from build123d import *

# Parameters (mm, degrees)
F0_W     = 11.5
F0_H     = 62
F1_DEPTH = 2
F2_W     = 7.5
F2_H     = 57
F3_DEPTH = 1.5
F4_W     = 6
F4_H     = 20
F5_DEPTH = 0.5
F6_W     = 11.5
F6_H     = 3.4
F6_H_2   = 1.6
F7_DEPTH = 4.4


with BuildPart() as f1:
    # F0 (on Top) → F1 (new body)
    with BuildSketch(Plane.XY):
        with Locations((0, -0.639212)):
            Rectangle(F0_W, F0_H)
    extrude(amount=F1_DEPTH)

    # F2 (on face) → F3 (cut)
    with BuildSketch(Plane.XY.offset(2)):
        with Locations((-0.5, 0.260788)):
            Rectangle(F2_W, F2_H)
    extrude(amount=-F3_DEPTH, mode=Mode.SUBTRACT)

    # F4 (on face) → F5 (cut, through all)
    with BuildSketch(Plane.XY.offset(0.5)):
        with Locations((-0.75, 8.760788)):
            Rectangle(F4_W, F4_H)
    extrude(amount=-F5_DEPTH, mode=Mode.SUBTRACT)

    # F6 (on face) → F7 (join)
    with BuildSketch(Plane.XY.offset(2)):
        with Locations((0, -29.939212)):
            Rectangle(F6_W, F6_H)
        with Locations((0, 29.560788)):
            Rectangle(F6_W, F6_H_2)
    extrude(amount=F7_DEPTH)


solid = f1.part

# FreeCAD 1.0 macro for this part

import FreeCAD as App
import Part
import Sketcher

V = App.Vector


def add_polygon(sketch, points):
    """Adds a closed chain of lines whose ends are joined by coincident constraints."""
    first, n = sketch.GeometryCount, len(points)
    for a, b in zip(points, points[1:] + points[:1]):
        sketch.addGeometry(Part.LineSegment(App.Vector(*a, 0), App.Vector(*b, 0)), False)
    for i in range(n):
        sketch.addConstraint(Sketcher.Constraint("Coincident", first + i, 2, first + (i + 1) % n, 1))

doc = App.newDocument("Part")
body = doc.addObject("PartDesign::Body", "Body")

sketch1 = body.newObject("Sketcher::SketchObject", "Sketch")
sketch1.AttachmentSupport = (doc.getObject("XY_Plane"), [""])
sketch1.MapMode = "FlatFace"
add_polygon(sketch1, [(-6, 30), (-6, -32), (6, -32), (6, 30)])
sketch1.addConstraint([
    Sketcher.Constraint("Vertical", 0),
    Sketcher.Constraint("Horizontal", 1),
    Sketcher.Constraint("Vertical", 2),
    Sketcher.Constraint("Horizontal", 3),
    Sketcher.Constraint("DistanceY", 0, 2, 0, 1, 62.0),
    Sketcher.Constraint("DistanceX", 1, 1, 1, 2, 11.5),
    Sketcher.Constraint("DistanceX", 0, 2, -1, 1, 5.75),
    Sketcher.Constraint("DistanceY", 0, 2, -1, 1, 31.639212),
])
pad1 = body.newObject("PartDesign::Pad", "Pad")
pad1.Profile = sketch1
pad1.Length = 2

sketch2 = body.newObject("Sketcher::SketchObject", "Sketch001")
sketch2.AttachmentSupport = (doc.getObject("XY_Plane"), [""])
sketch2.MapMode = "FlatFace"
sketch2.AttachmentOffset = App.Placement(V(0, 0, 2), App.Rotation())
add_polygon(sketch2, [(-4, 29), (-4, -28), (3, -28), (3, 29)])
sketch2.addConstraint([
    Sketcher.Constraint("Vertical", 0),
    Sketcher.Constraint("Horizontal", 1),
    Sketcher.Constraint("Vertical", 2),
    Sketcher.Constraint("Horizontal", 3),
    Sketcher.Constraint("DistanceY", 0, 2, 0, 1, 57.0),
    Sketcher.Constraint("DistanceX", 1, 1, 1, 2, 7.5),
    Sketcher.Constraint("DistanceX", 0, 2, -1, 1, 4.25),
    Sketcher.Constraint("DistanceY", 0, 2, -1, 1, 28.239212),
])
pocket1 = body.newObject("PartDesign::Pocket", "Pocket")
pocket1.Profile = sketch2
pocket1.Length = 1.5

sketch3 = body.newObject("Sketcher::SketchObject", "Sketch002")
sketch3.AttachmentSupport = (doc.getObject("XY_Plane"), [""])
sketch3.MapMode = "FlatFace"
sketch3.AttachmentOffset = App.Placement(V(0, 0, 0.5), App.Rotation())
add_polygon(sketch3, [(-4, 19), (-4, -1), (2, -1), (2, 19)])
sketch3.addConstraint([
    Sketcher.Constraint("Vertical", 0),
    Sketcher.Constraint("Horizontal", 1),
    Sketcher.Constraint("Vertical", 2),
    Sketcher.Constraint("Horizontal", 3),
    Sketcher.Constraint("DistanceX", 1, 1, 1, 2, 6.0),
    Sketcher.Constraint("DistanceY", 0, 2, 0, 1, 20.0),
    Sketcher.Constraint("DistanceX", 0, 2, -1, 1, 3.75),
    Sketcher.Constraint("DistanceY", -1, 1, 2, 2, 18.760788),
])
pocket2 = body.newObject("PartDesign::Pocket", "Pocket001")
pocket2.Profile = sketch3
pocket2.Type = "ThroughAll"

sketch4 = body.newObject("Sketcher::SketchObject", "Sketch003")
sketch4.AttachmentSupport = (doc.getObject("XY_Plane"), [""])
sketch4.MapMode = "FlatFace"
sketch4.AttachmentOffset = App.Placement(V(0, 0, 2), App.Rotation())
add_polygon(sketch4, [(-5.8, -28.2), (-5.8, -31.6), (5.8, -31.6), (5.8, -28.2)])
add_polygon(sketch4, [(-5.8, 30.4), (-5.8, 28.8), (5.8, 28.8), (5.8, 30.4)])
sketch4.addConstraint([
    Sketcher.Constraint("Vertical", 0),
    Sketcher.Constraint("Horizontal", 1),
    Sketcher.Constraint("Vertical", 2),
    Sketcher.Constraint("Horizontal", 3),
    Sketcher.Constraint("Vertical", 4),
    Sketcher.Constraint("Horizontal", 5),
    Sketcher.Constraint("Vertical", 6),
    Sketcher.Constraint("Horizontal", 7),
    Sketcher.Constraint("Vertical", 3, 2, 4, 2),
    Sketcher.Constraint("Vertical", 2, 2, 5, 2),
    Sketcher.Constraint("DistanceX", 1, 1, 1, 2, 11.5),
    Sketcher.Constraint("DistanceY", 0, 2, 0, 1, 3.4),
    Sketcher.Constraint("DistanceY", 4, 2, 4, 1, 1.6),
    Sketcher.Constraint("DistanceY", 3, 2, 4, 2, 57.0),
    Sketcher.Constraint("DistanceX", 0, 2, -1, 1, 5.75),
    Sketcher.Constraint("DistanceY", 2, 2, -1, 1, 28.239212),
])
pad2 = body.newObject("PartDesign::Pad", "Pad001")
pad2.Profile = sketch4
pad2.Length = 4.4

doc.recompute()
